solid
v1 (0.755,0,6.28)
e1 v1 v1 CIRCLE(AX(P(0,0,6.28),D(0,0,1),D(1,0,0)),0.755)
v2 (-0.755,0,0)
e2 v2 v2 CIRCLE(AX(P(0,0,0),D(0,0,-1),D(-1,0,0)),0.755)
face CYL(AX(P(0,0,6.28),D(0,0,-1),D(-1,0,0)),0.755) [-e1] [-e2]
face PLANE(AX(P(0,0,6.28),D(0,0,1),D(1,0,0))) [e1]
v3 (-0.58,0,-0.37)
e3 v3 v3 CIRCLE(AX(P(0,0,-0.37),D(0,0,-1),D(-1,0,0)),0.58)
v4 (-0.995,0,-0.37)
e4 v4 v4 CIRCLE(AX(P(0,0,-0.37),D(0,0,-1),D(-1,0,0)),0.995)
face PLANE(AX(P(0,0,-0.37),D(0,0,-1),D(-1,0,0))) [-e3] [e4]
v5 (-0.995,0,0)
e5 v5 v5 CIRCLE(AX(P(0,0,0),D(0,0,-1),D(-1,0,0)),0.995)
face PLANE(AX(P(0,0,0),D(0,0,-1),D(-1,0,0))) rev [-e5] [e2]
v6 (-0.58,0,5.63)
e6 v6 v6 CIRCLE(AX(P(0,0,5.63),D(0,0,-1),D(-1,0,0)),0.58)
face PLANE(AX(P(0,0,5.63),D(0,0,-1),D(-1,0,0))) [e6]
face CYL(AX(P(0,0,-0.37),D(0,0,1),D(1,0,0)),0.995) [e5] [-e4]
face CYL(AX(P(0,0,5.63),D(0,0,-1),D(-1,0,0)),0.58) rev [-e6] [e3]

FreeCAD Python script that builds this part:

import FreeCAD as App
import Part
import Sketcher

V = App.Vector
Q = App.Units.Quantity

doc = App.newDocument("Part")
params = doc.addObject("Spreadsheet::Sheet", "Params")
for row, (alias, value) in enumerate([
    ("sketch1_diameter", "1.51 mm"),
    ("pad1_length", "6.28 mm"),
    ("sketch2_diameter", "1.99 mm"),
    ("pad2_length", "0.37 mm"),
    ("sketch3_diameter", "1.16 mm"),
    ("pocket1_length", "6 mm"),
], start=1):
    params.set(f"A{row}", alias)
    params.set(f"B{row}", "=" + value)
    params.setAlias(f"B{row}", alias)

body = doc.addObject("PartDesign::Body", "Body")

sketch1 = body.newObject("Sketcher::SketchObject", "Sketch")
sketch1.AttachmentSupport = (doc.getObject("XY_Plane"), [""])
sketch1.MapMode = "FlatFace"
sketch1.addGeometry(Part.Circle(V(0, 0, 0), V(0, 0, 1), 0.8), False)
sketch1.addConstraint([
    Sketcher.Constraint("Coincident", 0, 3, -1, 1),
    Sketcher.Constraint("Diameter", 0, Q("1.51 mm")),
])
sketch1.setExpression("Constraints[1]", "Params.sketch1_diameter")
pad1 = body.newObject("PartDesign::Pad", "Pad")
pad1.Profile = sketch1
pad1.setExpression("Length", "Params.pad1_length")

sketch2 = body.newObject("Sketcher::SketchObject", "Sketch001")
sketch2.AttachmentSupport = (doc.getObject("XY_Plane"), [""])
sketch2.MapMode = "FlatFace"
sketch2.addGeometry(Part.Circle(V(0, 0, 0), V(0, 0, 1), 1), False)
sketch2.addConstraint([
    Sketcher.Constraint("Coincident", 0, 3, -1, 1),
    Sketcher.Constraint("Diameter", 0, Q("1.99 mm")),
])
sketch2.setExpression("Constraints[1]", "Params.sketch2_diameter")
pad2 = body.newObject("PartDesign::Pad", "Pad001")
pad2.Profile = sketch2
pad2.setExpression("Length", "Params.pad2_length")
pad2.Reversed = True

sketch3 = body.newObject("Sketcher::SketchObject", "Sketch002")
sketch3.AttachmentSupport = (doc.getObject("XY_Plane"), [""])
sketch3.MapMode = "FlatFace"
sketch3.AttachmentOffset = App.Placement(V(0, 0, -0.37), App.Rotation())
sketch3.addGeometry(Part.Circle(V(0, 0, 0), V(0, 0, 1), 0.6), False)
sketch3.addConstraint([
    Sketcher.Constraint("Coincident", 0, 3, -1, 1),
    Sketcher.Constraint("Diameter", 0, Q("1.16 mm")),
])
sketch3.setExpression("Constraints[1]", "Params.sketch3_diameter")
pocket1 = body.newObject("PartDesign::Pocket", "Pocket")
pocket1.Profile = sketch3
pocket1.setExpression("Length", "Params.pocket1_length")
pocket1.Reversed = True

doc.recompute()
